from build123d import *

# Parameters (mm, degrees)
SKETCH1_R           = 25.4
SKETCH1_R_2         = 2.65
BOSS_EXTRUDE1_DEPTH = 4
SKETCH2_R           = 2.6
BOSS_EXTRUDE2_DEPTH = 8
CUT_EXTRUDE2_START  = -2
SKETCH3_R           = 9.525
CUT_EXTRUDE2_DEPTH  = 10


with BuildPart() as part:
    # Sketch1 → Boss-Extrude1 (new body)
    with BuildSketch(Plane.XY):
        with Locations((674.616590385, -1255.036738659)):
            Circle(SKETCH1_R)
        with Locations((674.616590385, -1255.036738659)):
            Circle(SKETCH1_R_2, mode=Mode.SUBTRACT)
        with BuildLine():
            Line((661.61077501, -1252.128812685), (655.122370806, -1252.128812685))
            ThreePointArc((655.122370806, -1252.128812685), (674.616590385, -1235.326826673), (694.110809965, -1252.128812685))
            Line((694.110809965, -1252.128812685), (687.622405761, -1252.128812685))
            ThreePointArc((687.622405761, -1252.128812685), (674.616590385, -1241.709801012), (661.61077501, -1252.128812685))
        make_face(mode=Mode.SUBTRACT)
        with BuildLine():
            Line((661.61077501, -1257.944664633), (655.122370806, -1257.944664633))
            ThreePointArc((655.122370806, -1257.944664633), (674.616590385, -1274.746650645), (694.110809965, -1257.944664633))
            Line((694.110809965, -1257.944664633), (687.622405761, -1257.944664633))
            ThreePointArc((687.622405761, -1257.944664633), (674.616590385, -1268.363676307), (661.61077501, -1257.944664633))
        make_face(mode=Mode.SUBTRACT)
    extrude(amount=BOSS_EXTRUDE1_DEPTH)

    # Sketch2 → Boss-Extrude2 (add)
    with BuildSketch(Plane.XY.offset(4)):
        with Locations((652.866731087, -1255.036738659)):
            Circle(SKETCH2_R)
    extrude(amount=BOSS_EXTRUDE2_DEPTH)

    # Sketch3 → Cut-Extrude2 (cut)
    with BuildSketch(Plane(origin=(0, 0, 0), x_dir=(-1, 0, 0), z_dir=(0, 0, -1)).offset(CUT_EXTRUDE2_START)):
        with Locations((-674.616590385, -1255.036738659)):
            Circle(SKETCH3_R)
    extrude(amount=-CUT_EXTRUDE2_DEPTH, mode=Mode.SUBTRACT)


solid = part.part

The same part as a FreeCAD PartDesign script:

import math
import FreeCAD as App
import Part
import Sketcher

V = App.Vector
Q = App.Units.Quantity

doc = App.newDocument("Part")
params = doc.addObject("Spreadsheet::Sheet", "Params")
for row, (alias, value) in enumerate([
    ("sketch1_diameter", "50.8 mm"),
    ("sketch1_diameter2", "5.3 mm"),
    ("pad1_length", "4 mm"),
    ("sketch2_diameter", "5.2 mm"),
    ("pad2_length", "8 mm"),
    ("sketch3_diameter", "19.05 mm"),
    ("pocket1_length", "10 mm"),
], start=1):
    params.set(f"A{row}", alias)
    params.set(f"B{row}", "=" + value)
    params.setAlias(f"B{row}", alias)

body = doc.addObject("PartDesign::Body", "Body")

# Sketch on XY plane
sketch1 = body.newObject("Sketcher::SketchObject", "Sketch")
sketch1.AttachmentSupport = (doc.getObject("XY_Plane"), [""])
sketch1.MapMode = "FlatFace"
sketch1.addGeometry([
    Part.Circle(V(674.61659, -1255.036739, 0), V(0, 0, 1), 25.4),  # 0
    Part.Circle(V(674.61659, -1255.036739, 0), V(0, 0, 1), 2.65),  # 1
    Part.LineSegment(V(655.122371, -1257.944665, 0), V(661.610775, -1257.944665, 0)),  # 2
    Part.ArcOfCircle(Part.Circle(V(674.61659, -1255.036739, 0), V(0, 0, 1), 13.326938), math.radians(-167.39672), math.radians(-12.60328)),  # 3
    Part.LineSegment(V(687.622406, -1257.944665, 0), V(694.11081, -1257.944665, 0)),  # 4
    Part.ArcOfCircle(Part.Circle(V(674.61659, -1255.036739, 0), V(0, 0, 1), 19.709912), math.radians(-171.515826), math.radians(-8.484174)),  # 5
    Part.ArcOfCircle(Part.Circle(V(674.61659, -1255.036739, 0), V(0, 0, 1), 13.326938), math.radians(12.60328), math.radians(167.39672)),  # 6
    Part.LineSegment(V(661.610775, -1252.128813, 0), V(655.122371, -1252.128813, 0)),  # 7
    Part.ArcOfCircle(Part.Circle(V(674.61659, -1255.036739, 0), V(0, 0, 1), 19.709912), math.radians(8.484174), math.radians(171.515826)),  # 8
    Part.LineSegment(V(694.11081, -1252.128813, 0), V(687.622406, -1252.128813, 0)),  # 9
], False)
sketch1.addConstraint([
    Sketcher.Constraint("Coincident", 2, 2, 3, 1),
    Sketcher.Constraint("Coincident", 3, 2, 4, 1),
    Sketcher.Constraint("Coincident", 4, 2, 5, 2),
    Sketcher.Constraint("Coincident", 5, 1, 2, 1),
    Sketcher.Constraint("Coincident", 6, 2, 7, 1),
    Sketcher.Constraint("Coincident", 7, 2, 8, 2),
    Sketcher.Constraint("Coincident", 8, 1, 9, 1),
    Sketcher.Constraint("Coincident", 9, 2, 6, 1),
    Sketcher.Constraint("Horizontal", 2),
    Sketcher.Constraint("Horizontal", 4),
    Sketcher.Constraint("Horizontal", 7),
    Sketcher.Constraint("Horizontal", 9),
    Sketcher.Constraint("Coincident", 1, 3, 0, 3),
    Sketcher.Constraint("Coincident", 3, 3, 0, 3),
    Sketcher.Constraint("Coincident", 5, 3, 0, 3),
    Sketcher.Constraint("Coincident", 6, 3, 0, 3),
    Sketcher.Constraint("Coincident", 8, 3, 0, 3),
    Sketcher.Constraint("Equal", 3, 6),
    Sketcher.Constraint("Equal", 5, 8),
    Sketcher.Constraint("Horizontal", 2, 2, 3, 2),
    Sketcher.Constraint("Horizontal", 7, 2, 8, 1),
    Sketcher.Constraint("Vertical", 2, 2, 6, 2),
    Sketcher.Constraint("Diameter", 0, Q("50.8 mm")),
    Sketcher.Constraint("Diameter", 1, Q("5.3 mm")),
    Sketcher.Constraint("Radius", 5, Q("19.709912 mm")),
    Sketcher.Constraint("Radius", 3, Q("13.326938 mm")),
    Sketcher.Constraint("DistanceX", 2, 1, 2, 2, Q("6.488404 mm")),
    Sketcher.Constraint("DistanceX", -1, 1, 0, 3, Q("674.61659 mm")),
    Sketcher.Constraint("DistanceY", 0, 3, -1, 1, Q("1255.036739 mm")),
])
sketch1.setExpression("Constraints[22]", "Params.sketch1_diameter")
sketch1.setExpression("Constraints[23]", "Params.sketch1_diameter2")
pad1 = body.newObject("PartDesign::Pad", "Pad")
pad1.Profile = sketch1
pad1.setExpression("Length", "Params.pad1_length")

# Sketch on XY plane
sketch2 = body.newObject("Sketcher::SketchObject", "Sketch001")
sketch2.AttachmentSupport = (doc.getObject("XY_Plane"), [""])
sketch2.MapMode = "FlatFace"
sketch2.AttachmentOffset = App.Placement(V(0, 0, 4), App.Rotation())
sketch2.addGeometry(Part.Circle(V(652.866731, -1255.036739, 0), V(0, 0, 1), 2.6), False)
sketch2.addConstraint([
    Sketcher.Constraint("Diameter", 0, Q("5.2 mm")),
    Sketcher.Constraint("DistanceX", -1, 1, 0, 3, Q("652.866731 mm")),
    Sketcher.Constraint("DistanceY", 0, 3, -1, 1, Q("1255.036739 mm")),
])
sketch2.setExpression("Constraints[0]", "Params.sketch2_diameter")
pad2 = body.newObject("PartDesign::Pad", "Pad001")
pad2.Profile = sketch2
pad2.setExpression("Length", "Params.pad2_length")

# Sketch on XY plane
sketch3 = body.newObject("Sketcher::SketchObject", "Sketch002")
sketch3.AttachmentSupport = (doc.getObject("XY_Plane"), [""])
sketch3.MapMode = "FlatFace"
sketch3.AttachmentOffset = App.Placement(V(0, 0, 2), App.Rotation())
sketch3.addGeometry(Part.Circle(V(674.61659, -1255.036739, 0), V(0, 0, 1), 9.525), False)
sketch3.addConstraint([
    Sketcher.Constraint("Diameter", 0, Q("19.05 mm")),
    Sketcher.Constraint("DistanceX", -1, 1, 0, 3, Q("674.61659 mm")),
    Sketcher.Constraint("DistanceY", 0, 3, -1, 1, Q("1255.036739 mm")),
])
sketch3.setExpression("Constraints[0]", "Params.sketch3_diameter")
pocket1 = body.newObject("PartDesign::Pocket", "Pocket")
pocket1.Profile = sketch3
pocket1.setExpression("Length", "Params.pocket1_length")
pocket1.Reversed = True

doc.recompute()
